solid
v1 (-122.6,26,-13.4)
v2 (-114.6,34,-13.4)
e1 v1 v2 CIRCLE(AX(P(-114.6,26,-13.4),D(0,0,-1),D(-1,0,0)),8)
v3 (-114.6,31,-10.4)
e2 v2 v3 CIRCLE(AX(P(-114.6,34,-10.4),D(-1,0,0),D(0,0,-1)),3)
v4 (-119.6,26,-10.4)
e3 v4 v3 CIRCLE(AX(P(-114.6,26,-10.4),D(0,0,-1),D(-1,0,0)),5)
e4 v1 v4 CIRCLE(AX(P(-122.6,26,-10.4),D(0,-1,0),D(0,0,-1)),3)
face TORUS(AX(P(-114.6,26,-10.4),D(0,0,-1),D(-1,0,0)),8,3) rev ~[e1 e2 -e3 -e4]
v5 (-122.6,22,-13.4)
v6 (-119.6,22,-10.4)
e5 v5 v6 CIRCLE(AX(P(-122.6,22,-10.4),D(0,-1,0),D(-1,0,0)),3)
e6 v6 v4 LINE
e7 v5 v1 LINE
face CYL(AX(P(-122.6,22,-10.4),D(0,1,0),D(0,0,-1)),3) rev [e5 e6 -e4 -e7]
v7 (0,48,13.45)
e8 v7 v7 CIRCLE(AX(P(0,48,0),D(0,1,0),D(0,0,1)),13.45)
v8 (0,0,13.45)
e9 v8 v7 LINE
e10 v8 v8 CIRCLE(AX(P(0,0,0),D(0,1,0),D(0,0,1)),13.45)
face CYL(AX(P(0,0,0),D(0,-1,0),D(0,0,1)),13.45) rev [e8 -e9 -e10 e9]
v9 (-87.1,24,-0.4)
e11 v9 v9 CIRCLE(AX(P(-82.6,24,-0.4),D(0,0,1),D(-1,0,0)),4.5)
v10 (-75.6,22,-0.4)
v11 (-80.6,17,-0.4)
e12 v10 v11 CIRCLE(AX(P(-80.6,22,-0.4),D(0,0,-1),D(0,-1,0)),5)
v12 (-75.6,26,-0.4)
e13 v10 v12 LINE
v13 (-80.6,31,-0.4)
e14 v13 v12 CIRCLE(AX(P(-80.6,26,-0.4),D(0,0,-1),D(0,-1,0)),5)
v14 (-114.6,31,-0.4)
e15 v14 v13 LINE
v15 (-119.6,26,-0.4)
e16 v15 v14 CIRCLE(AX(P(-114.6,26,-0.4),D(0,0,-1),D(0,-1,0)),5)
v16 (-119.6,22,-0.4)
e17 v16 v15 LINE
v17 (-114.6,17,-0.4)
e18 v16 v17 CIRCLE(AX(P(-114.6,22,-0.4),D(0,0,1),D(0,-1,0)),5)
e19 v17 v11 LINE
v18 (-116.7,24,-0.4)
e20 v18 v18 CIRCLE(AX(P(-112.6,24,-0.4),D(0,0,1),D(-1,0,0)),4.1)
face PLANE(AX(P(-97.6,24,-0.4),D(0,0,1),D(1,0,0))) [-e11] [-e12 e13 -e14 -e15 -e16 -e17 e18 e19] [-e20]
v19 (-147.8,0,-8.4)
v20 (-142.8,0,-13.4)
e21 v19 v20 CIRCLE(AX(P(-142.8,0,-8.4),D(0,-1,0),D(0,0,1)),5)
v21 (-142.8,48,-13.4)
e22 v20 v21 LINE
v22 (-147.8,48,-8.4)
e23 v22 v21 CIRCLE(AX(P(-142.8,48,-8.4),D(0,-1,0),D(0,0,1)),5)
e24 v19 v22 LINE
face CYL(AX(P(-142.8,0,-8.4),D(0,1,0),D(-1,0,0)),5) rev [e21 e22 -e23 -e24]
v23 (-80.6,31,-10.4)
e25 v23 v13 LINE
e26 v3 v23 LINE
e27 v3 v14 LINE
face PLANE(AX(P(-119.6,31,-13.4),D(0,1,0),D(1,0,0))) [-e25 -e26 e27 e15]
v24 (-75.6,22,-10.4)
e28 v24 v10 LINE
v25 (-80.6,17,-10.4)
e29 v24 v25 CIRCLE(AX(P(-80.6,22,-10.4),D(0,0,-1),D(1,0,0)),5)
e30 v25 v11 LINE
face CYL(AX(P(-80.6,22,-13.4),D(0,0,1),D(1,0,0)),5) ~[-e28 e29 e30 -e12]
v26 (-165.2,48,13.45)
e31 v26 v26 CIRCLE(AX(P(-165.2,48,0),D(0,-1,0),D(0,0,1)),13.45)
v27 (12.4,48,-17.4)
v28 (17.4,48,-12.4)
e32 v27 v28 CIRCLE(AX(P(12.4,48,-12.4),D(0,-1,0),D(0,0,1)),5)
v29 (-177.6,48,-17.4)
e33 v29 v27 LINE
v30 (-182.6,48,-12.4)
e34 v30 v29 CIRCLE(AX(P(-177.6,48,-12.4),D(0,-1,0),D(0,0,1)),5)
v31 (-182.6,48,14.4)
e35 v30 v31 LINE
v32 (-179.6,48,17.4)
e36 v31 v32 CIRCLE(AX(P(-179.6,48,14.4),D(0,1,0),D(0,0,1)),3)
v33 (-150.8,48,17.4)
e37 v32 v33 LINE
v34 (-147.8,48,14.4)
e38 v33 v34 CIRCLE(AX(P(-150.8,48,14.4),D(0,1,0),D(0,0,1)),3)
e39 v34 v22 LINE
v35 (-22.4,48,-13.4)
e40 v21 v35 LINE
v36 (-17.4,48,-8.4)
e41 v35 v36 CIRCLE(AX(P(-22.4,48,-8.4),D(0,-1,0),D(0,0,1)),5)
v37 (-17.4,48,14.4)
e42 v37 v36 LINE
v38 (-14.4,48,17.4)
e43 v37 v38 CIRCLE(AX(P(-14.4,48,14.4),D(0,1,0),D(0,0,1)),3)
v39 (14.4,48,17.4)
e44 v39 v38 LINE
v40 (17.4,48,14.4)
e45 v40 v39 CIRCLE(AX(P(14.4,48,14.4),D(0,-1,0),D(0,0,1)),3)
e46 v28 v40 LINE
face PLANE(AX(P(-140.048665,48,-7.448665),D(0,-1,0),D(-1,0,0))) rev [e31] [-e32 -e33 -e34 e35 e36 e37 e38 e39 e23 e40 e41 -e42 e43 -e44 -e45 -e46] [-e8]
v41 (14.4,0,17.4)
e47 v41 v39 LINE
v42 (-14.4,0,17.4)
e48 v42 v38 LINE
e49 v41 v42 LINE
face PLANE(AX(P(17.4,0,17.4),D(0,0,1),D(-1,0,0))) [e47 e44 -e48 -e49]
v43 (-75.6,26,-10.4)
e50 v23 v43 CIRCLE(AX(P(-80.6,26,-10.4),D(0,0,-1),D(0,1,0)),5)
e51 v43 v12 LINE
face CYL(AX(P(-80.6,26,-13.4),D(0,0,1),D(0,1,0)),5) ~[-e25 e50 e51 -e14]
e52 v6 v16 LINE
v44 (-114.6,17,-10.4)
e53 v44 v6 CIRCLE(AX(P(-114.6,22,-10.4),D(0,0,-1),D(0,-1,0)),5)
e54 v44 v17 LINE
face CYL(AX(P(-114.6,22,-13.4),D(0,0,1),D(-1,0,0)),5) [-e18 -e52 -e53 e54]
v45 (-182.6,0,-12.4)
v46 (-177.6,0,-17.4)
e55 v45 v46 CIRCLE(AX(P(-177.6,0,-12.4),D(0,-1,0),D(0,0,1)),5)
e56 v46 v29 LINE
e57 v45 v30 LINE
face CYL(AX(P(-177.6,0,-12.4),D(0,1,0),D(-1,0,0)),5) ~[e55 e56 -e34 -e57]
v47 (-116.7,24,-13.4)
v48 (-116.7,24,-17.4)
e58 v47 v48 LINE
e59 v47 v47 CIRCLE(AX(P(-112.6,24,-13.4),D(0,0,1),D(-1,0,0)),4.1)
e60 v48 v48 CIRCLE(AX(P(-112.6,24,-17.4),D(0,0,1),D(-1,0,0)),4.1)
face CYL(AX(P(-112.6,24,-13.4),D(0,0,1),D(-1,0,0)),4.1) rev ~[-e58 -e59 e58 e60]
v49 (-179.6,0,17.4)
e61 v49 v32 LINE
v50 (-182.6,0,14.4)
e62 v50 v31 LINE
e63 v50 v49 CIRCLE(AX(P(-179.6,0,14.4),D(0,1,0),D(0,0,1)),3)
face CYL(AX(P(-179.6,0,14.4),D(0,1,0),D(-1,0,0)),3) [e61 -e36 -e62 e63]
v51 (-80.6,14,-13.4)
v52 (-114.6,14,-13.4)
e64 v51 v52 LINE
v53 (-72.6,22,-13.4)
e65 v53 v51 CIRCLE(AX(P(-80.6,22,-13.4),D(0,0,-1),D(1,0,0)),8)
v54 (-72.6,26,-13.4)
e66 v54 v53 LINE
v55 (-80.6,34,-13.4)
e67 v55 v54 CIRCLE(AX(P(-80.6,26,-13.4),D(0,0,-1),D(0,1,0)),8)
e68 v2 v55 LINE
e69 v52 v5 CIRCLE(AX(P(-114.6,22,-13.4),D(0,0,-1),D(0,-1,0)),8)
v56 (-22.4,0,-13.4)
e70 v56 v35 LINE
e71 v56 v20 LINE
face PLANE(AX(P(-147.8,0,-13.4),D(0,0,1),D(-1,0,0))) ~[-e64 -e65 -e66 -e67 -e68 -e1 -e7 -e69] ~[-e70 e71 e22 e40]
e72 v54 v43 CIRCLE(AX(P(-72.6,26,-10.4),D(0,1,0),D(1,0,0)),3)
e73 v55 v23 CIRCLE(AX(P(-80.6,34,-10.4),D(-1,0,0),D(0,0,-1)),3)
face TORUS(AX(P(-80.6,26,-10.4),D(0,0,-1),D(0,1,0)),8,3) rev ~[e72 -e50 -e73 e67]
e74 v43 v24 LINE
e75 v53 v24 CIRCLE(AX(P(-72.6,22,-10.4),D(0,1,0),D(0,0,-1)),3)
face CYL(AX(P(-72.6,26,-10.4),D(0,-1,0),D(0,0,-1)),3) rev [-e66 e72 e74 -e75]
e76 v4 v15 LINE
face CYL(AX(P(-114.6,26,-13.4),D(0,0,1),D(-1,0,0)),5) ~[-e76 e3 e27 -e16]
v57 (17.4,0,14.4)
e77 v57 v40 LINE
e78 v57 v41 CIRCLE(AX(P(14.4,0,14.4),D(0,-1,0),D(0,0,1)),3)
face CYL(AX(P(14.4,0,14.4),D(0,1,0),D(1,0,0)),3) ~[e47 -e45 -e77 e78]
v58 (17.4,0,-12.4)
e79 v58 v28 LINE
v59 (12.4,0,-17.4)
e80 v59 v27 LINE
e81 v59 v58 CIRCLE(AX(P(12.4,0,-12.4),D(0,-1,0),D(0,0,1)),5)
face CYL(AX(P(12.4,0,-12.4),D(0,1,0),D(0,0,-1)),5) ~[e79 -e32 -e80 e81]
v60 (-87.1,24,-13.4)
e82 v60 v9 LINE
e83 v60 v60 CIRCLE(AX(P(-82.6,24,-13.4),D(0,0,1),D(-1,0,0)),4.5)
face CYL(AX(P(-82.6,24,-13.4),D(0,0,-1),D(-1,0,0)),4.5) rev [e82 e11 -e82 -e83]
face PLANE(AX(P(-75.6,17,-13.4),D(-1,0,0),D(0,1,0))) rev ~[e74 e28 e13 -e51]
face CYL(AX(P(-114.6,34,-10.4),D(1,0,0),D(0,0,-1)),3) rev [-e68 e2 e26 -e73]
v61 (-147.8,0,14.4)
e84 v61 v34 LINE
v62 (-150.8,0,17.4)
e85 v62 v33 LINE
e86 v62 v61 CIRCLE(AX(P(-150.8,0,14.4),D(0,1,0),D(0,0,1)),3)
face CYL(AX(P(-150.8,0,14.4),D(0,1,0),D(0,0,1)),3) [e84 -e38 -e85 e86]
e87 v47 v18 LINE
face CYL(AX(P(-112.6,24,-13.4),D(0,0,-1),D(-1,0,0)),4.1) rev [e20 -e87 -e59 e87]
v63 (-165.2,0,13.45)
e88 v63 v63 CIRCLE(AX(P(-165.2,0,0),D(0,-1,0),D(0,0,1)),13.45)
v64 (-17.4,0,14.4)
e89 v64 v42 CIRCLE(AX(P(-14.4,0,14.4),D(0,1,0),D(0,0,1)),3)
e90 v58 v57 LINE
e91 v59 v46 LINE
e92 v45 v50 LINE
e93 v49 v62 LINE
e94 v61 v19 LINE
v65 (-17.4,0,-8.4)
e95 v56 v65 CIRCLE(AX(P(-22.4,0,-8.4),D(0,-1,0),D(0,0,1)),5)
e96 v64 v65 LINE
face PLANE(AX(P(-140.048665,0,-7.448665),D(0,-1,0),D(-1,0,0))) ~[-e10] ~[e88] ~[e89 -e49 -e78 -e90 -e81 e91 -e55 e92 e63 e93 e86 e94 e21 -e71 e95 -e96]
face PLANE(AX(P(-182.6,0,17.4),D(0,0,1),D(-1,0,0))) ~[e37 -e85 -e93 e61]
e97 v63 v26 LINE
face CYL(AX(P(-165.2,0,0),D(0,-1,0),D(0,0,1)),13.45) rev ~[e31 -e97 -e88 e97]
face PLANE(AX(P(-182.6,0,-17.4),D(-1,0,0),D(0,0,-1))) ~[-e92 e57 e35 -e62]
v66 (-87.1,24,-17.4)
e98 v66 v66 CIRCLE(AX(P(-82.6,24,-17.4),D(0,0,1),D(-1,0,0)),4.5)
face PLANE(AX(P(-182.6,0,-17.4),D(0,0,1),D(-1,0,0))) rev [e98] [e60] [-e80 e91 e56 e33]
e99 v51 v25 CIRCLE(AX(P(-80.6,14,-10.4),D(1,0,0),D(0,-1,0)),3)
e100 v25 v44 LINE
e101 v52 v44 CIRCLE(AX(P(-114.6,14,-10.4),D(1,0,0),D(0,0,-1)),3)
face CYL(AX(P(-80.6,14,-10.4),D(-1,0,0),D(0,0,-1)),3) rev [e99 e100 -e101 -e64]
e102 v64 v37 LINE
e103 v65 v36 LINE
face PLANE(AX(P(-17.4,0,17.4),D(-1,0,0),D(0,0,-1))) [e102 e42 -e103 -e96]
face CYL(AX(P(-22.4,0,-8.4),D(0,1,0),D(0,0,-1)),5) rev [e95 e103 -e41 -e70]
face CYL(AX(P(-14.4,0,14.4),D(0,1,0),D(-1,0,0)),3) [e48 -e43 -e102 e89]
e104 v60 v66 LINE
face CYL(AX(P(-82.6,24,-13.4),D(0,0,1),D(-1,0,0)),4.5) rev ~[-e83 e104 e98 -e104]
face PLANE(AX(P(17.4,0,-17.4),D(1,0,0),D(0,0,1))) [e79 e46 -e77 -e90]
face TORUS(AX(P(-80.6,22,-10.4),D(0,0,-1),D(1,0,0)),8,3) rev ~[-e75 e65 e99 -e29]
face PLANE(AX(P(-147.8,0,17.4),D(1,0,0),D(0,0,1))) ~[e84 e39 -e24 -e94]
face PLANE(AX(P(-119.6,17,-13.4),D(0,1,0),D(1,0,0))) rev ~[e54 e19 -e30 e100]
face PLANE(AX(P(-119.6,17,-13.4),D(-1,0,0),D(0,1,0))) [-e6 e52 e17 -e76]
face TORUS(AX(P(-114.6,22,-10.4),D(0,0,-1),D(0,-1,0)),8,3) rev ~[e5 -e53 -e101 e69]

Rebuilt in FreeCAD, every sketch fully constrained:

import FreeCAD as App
import Part
import Sketcher

V = App.Vector
Q = App.Units.Quantity


def edges_at(feature, points):
    """Names of the edges that pass closest to the given points."""
    edges = feature.Shape.Edges
    near = lambda p: min(range(len(edges)), key=lambda i: edges[i].distToShape(Part.Vertex(*p))[0])
    return sorted({f"Edge{near(p) + 1}" for p in points})


def add_polygon(sketch, points):
    """Adds a closed chain of lines whose ends are joined by coincident constraints."""
    first, n = sketch.GeometryCount, len(points)
    for a, b in zip(points, points[1:] + points[:1]):
        sketch.addGeometry(Part.LineSegment(App.Vector(*a, 0), App.Vector(*b, 0)), False)
    for i in range(n):
        sketch.addConstraint(Sketcher.Constraint("Coincident", first + i, 2, first + (i + 1) % n, 1))

doc = App.newDocument("Part")
body = doc.addObject("PartDesign::Body", "Body")

sketch1 = body.newObject("Sketcher::SketchObject", "Sketch")
sketch1.AttachmentSupport = (doc.getObject("XZ_Plane"), [""])
sketch1.MapMode = "FlatFace"
add_polygon(sketch1, [(17.4, -17.4), (-82.6, -17.4), (-82.6, -13.4), (-17.4, -13.4), (-17.4, 17.4), (17.4, 17.4)])
sketch1.addGeometry(Part.Circle(V(0, 0, 0), V(0, 0, 1), 13.4), False)
sketch1.addConstraint(Sketcher.Constraint("Horizontal", 0))
sketch1.addConstraint(Sketcher.Constraint("Vertical", 1))
sketch1.addConstraint(Sketcher.Constraint("Horizontal", 2))
sketch1.addConstraint(Sketcher.Constraint("Vertical", 3))
sketch1.addConstraint(Sketcher.Constraint("Horizontal", 4))
sketch1.addConstraint(Sketcher.Constraint("Vertical", 5))
sketch1.addConstraint(Sketcher.Constraint("Coincident", 6, 3, -1, 1))
sketch1.addConstraint(Sketcher.Constraint("Symmetric", 3, 2, 5, 2, -1, 1))
sketch1.addConstraint(Sketcher.Constraint("Equal", 4, 5))
sketch1.addConstraint(Sketcher.Constraint("Diameter", 6, Q("26.9 mm")))
sketch1.addConstraint(Sketcher.Constraint("DistanceX", 0, 2, 0, 1, Q("100 mm")))
sketch1.addConstraint(Sketcher.Constraint("DistanceY", 1, 1, 1, 2, Q("4 mm")))
sketch1.addConstraint(Sketcher.Constraint("DistanceX", 2, 1, 2, 2, Q("65.2 mm")))
pad1 = body.newObject("PartDesign::Pad", "Pad")
pad1.Profile = sketch1
pad1.Length = 48
pad1.Reversed = True
doc.recompute()

datumplane = body.newObject("PartDesign::Plane", "DatumPlane")
datumplane.AttachmentSupport = (doc.getObject("YZ_Plane"), [""])
datumplane.MapMode = "FlatFace"
datumplane.AttachmentOffset = App.Placement(V(0, 0, -82.6), App.Rotation())
mirrored = body.newObject("PartDesign::Mirrored", "Mirrored")
mirrored.Originals = [pad1]
mirrored.MirrorPlane = (datumplane, [""])
body.Tip = mirrored

sketch2 = body.newObject("Sketcher::SketchObject", "Sketch001")
sketch2.AttachmentSupport = (doc.getObject("XY_Plane"), [""])
sketch2.MapMode = "FlatFace"
sketch2.AttachmentOffset = App.Placement(V(0, 0, -13.4), App.Rotation())
add_polygon(sketch2, [(-119.6, 31), (-119.6, 17), (-75.6, 17), (-75.6, 31)])
sketch2.addGeometry(Part.Circle(V(-112.6, 24, 0), V(0, 0, 1), 4.1), False)
sketch2.addGeometry(Part.Circle(V(-82.6, 24, 0), V(0, 0, 1), 4.5), False)
sketch2.addConstraint(Sketcher.Constraint("Vertical", 0))
sketch2.addConstraint(Sketcher.Constraint("Horizontal", 1))
sketch2.addConstraint(Sketcher.Constraint("Vertical", 2))
sketch2.addConstraint(Sketcher.Constraint("Horizontal", 3))
sketch2.addConstraint(Sketcher.Constraint("Horizontal", 4, 3, 5, 3))
sketch2.addConstraint(Sketcher.Constraint("Diameter", 5, Q("9 mm")))
sketch2.addConstraint(Sketcher.Constraint("Diameter", 4, Q("8.2 mm")))
sketch2.addConstraint(Sketcher.Constraint("DistanceX", 1, 1, 1, 2, Q("44 mm")))
sketch2.addConstraint(Sketcher.Constraint("DistanceY", 0, 2, 0, 1, Q("14 mm")))
sketch2.addConstraint(Sketcher.Constraint("DistanceY", -1, 1, 4, 3, Q("24 mm")))
sketch2.addConstraint(Sketcher.Constraint("DistanceY", -1, 1, 0, 2, Q("17 mm")))
sketch2.addConstraint(Sketcher.Constraint("DistanceX", 4, 3, 5, 3, Q("30 mm")))
sketch2.addConstraint(Sketcher.Constraint("DistanceX", 0, 2, 4, 3, Q("7 mm")))
sketch2.addConstraint(Sketcher.Constraint("DistanceX", 4, 3, -1, 1, Q("112.6 mm")))
pad2 = body.newObject("PartDesign::Pad", "Pad001")
pad2.Profile = sketch2
pad2.Length = 13
doc.recompute()

fillet = body.newObject("PartDesign::Fillet", "Fillet")
fillet.Base = (pad2, edges_at(pad2, [
    (17.4, 24, 17.4),
    (-17.4, 24, 17.4),
    (-182.6, 24, 17.4),
    (-147.8, 24, 17.4),
]))
fillet.Radius = 3
doc.recompute()

fillet2 = body.newObject("PartDesign::Fillet", "Fillet001")
fillet2.Base = (fillet, edges_at(fillet, [
    (-17.4, 24, -13.4),
    (17.4, 24, -17.4),
    (-182.6, 24, -17.4),
    (-147.8, 24, -13.4),
]))
fillet2.Radius = 5
doc.recompute()

fillet3 = body.newObject("PartDesign::Fillet", "Fillet002")
fillet3.Base = (fillet2, edges_at(fillet2, [
    (-75.6, 17, -6.9),
    (-75.6, 31, -6.9),
    (-119.6, 31, -6.9),
    (-119.6, 17, -6.9),
]))
fillet3.Radius = 5
doc.recompute()

fillet4 = body.newObject("PartDesign::Fillet", "Fillet003")
fillet4.Base = (fillet3, edges_at(fillet3, [
    (-97.6, 31, -13.4),
    (-75.6, 24, -13.4),
    (-97.6, 17, -13.4),
    (-119.6, 24, -13.4),
    (-77.064, 29.536, -13.4),
    (-77.064, 18.464, -13.4),
    (-118.136, 29.536, -13.4),
    (-118.136, 18.464, -13.4),
]))
fillet4.Radius = 3

sketch3 = body.newObject("Sketcher::SketchObject", "Sketch002")
sketch3.AttachmentSupport = (doc.getObject("XY_Plane"), [""])
sketch3.MapMode = "FlatFace"
sketch3.AttachmentOffset = App.Placement(V(0, 0, -13.4), App.Rotation())
sketch3.addGeometry(Part.Circle(V(-112.6, 24, 0), V(0, 0, 1), 4.1), False)
sketch3.addGeometry(Part.Circle(V(-82.6, 24, 0), V(0, 0, 1), 4.5), False)
sketch3.addConstraint(Sketcher.Constraint("Horizontal", 0, 3, 1, 3))
sketch3.addConstraint(Sketcher.Constraint("Diameter", 1, Q("9 mm")))
sketch3.addConstraint(Sketcher.Constraint("Diameter", 0, Q("8.2 mm")))
sketch3.addConstraint(Sketcher.Constraint("DistanceY", -1, 1, 0, 3, Q("24 mm")))
sketch3.addConstraint(Sketcher.Constraint("DistanceX", 0, 3, 1, 3, Q("30 mm")))
sketch3.addConstraint(Sketcher.Constraint("DistanceX", 0, 3, -1, 1, Q("112.6 mm")))
pocket1 = body.newObject("PartDesign::Pocket", "Pocket")
pocket1.Profile = sketch3
pocket1.Type = "ThroughAll"

doc.recompute()
